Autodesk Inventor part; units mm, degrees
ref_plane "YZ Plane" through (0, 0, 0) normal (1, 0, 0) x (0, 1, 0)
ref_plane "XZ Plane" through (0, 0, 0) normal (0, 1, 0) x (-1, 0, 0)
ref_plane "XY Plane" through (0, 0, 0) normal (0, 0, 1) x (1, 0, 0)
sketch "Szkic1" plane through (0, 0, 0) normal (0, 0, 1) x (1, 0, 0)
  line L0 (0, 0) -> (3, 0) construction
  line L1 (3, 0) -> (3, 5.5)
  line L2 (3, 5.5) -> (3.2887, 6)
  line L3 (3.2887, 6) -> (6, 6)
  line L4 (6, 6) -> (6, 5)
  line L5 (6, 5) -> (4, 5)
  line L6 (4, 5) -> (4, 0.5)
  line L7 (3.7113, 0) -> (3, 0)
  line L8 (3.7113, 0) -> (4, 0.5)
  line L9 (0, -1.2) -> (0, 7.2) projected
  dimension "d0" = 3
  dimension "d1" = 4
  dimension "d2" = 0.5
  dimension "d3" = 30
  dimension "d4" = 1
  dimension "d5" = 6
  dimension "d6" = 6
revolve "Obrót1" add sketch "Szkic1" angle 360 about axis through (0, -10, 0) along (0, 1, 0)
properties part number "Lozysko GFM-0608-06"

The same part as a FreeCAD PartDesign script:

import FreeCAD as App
import Part
import Sketcher
from FreeCAD import Vector
Q = App.Units.Quantity


def add_polygon(sketch, points):
    """Adds a closed chain of lines whose ends are joined by coincident constraints."""
    first, n = sketch.GeometryCount, len(points)
    for a, b in zip(points, points[1:] + points[:1]):
        sketch.addGeometry(Part.LineSegment(App.Vector(*a, 0), App.Vector(*b, 0)), False)
    for i in range(n):
        sketch.addConstraint(Sketcher.Constraint("Coincident", first + i, 2, first + (i + 1) % n, 1))

doc = App.newDocument("Part")
body = doc.addObject("PartDesign::Body", "Body")

sketch1 = doc.addObject("Sketcher::SketchObject", "Sketch")
body.addObject(sketch1)
sketch1.AttachmentSupport = (doc.XY_Plane, [""])
sketch1.MapMode = "FlatFace"
add_polygon(sketch1, [(3, 5.5), (3, 0), (3.7, 0), (4, 0.5), (4, 5), (6, 5), (6, 6), (3.3, 6)])
sketch1.addConstraint([
    Sketcher.Constraint("Vertical", 0),
    Sketcher.Constraint("Horizontal", 1),
    Sketcher.Constraint("Vertical", 3),
    Sketcher.Constraint("Horizontal", 4),
    Sketcher.Constraint("Vertical", 5),
    Sketcher.Constraint("Horizontal", 6),
    Sketcher.Constraint("PointOnObject", 0, 2, -1),
    Sketcher.Constraint("Parallel", 2, 7),
    Sketcher.Constraint("Equal", 2, 7),
    Sketcher.Constraint("DistanceY", 5, 1, 5, 2, Q("1 mm")),
    Sketcher.Constraint("DistanceX", -1, 1, 0, 2, Q("3 mm")),
    Sketcher.Constraint("DistanceX", -1, 1, 2, 2, Q("4 mm")),
    Sketcher.Constraint("DistanceX", -1, 1, 4, 2, Q("6 mm")),
    Sketcher.Constraint("DistanceY", -1, 1, 5, 2, Q("6 mm")),
    Sketcher.Constraint("DistanceY", -1, 1, 2, 2, Q("0.5 mm")),
    Sketcher.Constraint("DistanceX", 1, 1, 1, 2, Q("0.7113 mm")),
])
revolution = doc.addObject("PartDesign::Revolution", "Revolution")
body.addObject(revolution)
revolution.Profile = sketch1
revolution.ReferenceAxis = (sketch1, ["V_Axis"])
revolution.Angle = 360

doc.recompute()
